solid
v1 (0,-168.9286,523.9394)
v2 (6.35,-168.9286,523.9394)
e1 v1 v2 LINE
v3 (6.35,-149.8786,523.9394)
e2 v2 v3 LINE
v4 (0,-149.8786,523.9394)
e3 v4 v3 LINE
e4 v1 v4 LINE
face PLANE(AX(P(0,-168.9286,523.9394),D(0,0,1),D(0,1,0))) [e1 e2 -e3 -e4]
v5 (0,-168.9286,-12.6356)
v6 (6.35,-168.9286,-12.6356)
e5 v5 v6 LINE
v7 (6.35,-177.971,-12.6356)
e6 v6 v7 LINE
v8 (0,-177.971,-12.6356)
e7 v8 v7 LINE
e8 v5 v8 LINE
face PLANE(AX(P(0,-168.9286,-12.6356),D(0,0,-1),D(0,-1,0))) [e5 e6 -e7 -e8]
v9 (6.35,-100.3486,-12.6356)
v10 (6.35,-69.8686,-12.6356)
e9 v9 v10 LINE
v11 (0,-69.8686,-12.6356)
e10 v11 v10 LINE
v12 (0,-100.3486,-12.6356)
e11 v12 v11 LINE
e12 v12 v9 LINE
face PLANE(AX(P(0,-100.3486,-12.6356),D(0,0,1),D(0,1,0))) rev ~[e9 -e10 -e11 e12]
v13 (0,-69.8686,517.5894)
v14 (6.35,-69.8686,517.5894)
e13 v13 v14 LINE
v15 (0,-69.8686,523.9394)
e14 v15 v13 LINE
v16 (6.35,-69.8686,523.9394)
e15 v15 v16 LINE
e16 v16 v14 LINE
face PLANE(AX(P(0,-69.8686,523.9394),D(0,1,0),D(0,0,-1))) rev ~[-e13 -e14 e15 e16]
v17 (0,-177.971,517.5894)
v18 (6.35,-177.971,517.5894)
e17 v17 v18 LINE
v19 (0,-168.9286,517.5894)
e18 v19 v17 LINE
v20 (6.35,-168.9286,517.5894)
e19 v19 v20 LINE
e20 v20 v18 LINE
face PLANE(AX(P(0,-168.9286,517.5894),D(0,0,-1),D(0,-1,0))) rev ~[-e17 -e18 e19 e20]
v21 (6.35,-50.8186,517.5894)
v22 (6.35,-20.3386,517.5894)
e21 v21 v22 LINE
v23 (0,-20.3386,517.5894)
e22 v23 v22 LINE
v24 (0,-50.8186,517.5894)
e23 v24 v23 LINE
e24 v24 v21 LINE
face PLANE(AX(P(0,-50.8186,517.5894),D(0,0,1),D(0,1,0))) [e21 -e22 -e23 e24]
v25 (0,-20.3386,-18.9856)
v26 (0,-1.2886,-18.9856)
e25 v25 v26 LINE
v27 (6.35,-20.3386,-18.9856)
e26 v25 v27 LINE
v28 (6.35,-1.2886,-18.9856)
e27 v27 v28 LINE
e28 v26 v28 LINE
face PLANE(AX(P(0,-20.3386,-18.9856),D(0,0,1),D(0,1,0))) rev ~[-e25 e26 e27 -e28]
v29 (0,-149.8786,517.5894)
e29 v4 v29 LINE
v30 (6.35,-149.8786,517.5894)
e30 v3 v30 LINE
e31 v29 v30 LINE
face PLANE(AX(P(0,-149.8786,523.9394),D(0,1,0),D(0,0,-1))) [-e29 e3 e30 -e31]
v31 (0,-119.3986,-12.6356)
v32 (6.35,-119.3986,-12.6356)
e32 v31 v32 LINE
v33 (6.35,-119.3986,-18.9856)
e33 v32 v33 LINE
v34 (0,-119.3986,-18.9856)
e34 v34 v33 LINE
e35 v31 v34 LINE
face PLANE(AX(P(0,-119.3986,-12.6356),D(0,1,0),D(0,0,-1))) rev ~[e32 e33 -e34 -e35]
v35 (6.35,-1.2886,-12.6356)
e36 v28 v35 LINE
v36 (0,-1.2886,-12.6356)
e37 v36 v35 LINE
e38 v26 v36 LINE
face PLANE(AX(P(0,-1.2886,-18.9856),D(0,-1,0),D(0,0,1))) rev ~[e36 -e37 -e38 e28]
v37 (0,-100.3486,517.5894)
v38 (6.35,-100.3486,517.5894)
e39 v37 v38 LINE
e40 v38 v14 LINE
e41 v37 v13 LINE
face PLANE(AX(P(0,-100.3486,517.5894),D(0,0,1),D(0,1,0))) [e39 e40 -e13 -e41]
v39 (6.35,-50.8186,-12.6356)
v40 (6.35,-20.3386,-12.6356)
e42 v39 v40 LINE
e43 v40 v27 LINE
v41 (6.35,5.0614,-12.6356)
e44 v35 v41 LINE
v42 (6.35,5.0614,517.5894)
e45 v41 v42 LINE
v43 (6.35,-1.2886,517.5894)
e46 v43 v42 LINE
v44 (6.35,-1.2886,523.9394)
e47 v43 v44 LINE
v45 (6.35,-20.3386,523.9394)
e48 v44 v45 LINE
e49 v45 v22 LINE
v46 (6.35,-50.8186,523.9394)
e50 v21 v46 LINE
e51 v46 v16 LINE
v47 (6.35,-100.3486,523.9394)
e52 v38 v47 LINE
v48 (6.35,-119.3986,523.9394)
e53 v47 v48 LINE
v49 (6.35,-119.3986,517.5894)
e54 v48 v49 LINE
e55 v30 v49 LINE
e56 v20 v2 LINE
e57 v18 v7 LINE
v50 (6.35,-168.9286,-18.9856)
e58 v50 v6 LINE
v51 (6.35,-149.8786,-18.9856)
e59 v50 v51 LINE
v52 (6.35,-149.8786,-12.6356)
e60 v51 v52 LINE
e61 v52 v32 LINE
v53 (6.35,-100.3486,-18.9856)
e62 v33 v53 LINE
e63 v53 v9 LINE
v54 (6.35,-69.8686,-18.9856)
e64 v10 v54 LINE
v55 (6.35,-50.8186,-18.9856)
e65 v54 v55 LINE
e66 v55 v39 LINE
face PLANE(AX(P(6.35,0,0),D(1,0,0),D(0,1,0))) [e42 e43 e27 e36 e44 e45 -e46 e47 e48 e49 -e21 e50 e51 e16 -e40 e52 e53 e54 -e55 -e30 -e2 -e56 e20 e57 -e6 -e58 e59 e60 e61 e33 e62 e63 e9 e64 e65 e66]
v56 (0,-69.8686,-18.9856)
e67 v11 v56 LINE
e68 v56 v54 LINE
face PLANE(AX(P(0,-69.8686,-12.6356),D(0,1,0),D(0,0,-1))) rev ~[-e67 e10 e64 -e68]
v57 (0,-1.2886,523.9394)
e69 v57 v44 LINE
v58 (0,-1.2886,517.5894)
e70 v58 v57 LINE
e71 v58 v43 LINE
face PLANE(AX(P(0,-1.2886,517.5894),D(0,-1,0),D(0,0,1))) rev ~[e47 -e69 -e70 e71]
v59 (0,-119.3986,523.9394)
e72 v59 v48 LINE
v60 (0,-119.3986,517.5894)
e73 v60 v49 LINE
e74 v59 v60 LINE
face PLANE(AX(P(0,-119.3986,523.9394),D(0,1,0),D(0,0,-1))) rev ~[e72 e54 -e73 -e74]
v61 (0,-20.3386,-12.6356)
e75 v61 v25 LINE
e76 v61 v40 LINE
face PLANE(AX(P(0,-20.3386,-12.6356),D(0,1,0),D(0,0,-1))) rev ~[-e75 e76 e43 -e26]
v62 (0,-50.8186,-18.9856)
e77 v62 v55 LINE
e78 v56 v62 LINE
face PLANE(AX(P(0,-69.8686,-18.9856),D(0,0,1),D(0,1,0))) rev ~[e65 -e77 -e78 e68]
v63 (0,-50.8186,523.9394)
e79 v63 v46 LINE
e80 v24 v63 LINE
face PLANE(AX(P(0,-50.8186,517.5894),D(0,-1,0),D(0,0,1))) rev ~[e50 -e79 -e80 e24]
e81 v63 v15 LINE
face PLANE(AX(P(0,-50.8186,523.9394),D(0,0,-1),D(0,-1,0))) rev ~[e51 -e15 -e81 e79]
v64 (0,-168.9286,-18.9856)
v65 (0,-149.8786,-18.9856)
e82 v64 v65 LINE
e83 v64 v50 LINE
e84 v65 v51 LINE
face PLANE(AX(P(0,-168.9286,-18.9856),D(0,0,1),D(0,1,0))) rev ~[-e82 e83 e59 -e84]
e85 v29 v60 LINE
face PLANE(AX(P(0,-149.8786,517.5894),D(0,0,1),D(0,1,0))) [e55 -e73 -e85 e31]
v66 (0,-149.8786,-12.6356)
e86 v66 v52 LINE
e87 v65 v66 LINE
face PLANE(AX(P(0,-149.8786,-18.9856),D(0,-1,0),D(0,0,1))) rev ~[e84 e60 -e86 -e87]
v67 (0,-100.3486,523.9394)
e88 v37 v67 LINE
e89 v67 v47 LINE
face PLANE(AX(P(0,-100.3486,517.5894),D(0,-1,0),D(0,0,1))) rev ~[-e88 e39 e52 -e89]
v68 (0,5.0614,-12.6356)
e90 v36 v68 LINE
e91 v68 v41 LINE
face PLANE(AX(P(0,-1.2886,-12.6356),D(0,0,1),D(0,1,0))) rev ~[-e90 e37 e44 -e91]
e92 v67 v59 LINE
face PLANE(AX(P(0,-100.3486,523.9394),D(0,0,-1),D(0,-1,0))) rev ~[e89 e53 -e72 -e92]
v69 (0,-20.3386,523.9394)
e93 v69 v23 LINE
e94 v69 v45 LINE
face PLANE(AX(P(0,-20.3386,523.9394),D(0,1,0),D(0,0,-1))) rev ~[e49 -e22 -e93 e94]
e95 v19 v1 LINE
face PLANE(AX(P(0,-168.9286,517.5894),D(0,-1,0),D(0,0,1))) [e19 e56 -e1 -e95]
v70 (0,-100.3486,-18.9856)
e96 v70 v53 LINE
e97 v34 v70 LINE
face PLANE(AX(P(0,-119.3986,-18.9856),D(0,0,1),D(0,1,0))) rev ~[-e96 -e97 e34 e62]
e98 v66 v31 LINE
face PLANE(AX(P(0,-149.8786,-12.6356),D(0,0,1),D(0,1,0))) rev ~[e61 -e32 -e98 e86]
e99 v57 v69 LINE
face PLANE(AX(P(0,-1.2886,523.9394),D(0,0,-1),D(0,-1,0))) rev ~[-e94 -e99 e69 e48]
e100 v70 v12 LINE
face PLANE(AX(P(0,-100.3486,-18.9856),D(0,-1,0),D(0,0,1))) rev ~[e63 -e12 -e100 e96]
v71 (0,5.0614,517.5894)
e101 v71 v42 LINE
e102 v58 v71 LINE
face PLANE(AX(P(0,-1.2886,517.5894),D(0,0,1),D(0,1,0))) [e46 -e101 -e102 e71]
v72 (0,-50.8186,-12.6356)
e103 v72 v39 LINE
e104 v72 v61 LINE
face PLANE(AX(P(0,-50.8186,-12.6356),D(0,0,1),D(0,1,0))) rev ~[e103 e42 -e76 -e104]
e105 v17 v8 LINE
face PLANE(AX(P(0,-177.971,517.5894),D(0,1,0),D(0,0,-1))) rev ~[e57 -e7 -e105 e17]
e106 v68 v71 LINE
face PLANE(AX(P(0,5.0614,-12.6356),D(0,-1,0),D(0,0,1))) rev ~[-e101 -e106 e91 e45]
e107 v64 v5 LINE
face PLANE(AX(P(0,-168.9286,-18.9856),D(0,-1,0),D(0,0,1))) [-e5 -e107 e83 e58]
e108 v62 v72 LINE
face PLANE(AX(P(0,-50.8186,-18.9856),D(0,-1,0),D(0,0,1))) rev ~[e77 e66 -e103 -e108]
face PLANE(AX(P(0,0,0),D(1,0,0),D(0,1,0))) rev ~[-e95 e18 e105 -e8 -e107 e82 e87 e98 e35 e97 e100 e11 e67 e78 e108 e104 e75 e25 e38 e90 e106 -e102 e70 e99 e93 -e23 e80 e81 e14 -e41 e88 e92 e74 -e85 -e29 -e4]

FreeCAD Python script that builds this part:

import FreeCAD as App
import Part
import Sketcher
Q = App.Units.Quantity


def add_polygon(sketch, points):
    """Adds a closed chain of lines whose ends are joined by coincident constraints."""
    first, n = sketch.GeometryCount, len(points)
    for a, b in zip(points, points[1:] + points[:1]):
        sketch.addGeometry(Part.LineSegment(App.Vector(*a, 0), App.Vector(*b, 0)), False)
    for i in range(n):
        sketch.addConstraint(Sketcher.Constraint("Coincident", first + i, 2, first + (i + 1) % n, 1))

doc = App.newDocument("Part")
body = doc.addObject("PartDesign::Body", "Body")

sketch1 = body.newObject("Sketcher::SketchObject", "Sketch")
sketch1.AttachmentSupport = (doc.getObject("YZ_Plane"), [""])
sketch1.MapMode = "FlatFace"
add_polygon(sketch1, [(-168.9286, 517.5894), (-177.971, 517.5894), (-177.971, -12.6356), (-168.9286, -12.6356), (-168.9286, -18.9856), (-149.8786, -18.9856), (-149.8786, -12.6356), (-119.3986, -12.6356), (-119.3986, -18.9856), (-100.3486, -18.9856), (-100.3486, -12.6356), (-69.8686, -12.6356), (-69.8686, -18.9856), (-50.8186, -18.9856), (-50.8186, -12.6356), (-20.3386, -12.6356), (-20.3386, -18.9856), (-1.2886, -18.9856), (-1.2886, -12.6356), (5.0614, -12.6356), (5.0614, 517.5894), (-1.2886, 517.5894), (-1.2886, 523.9394), (-20.3386, 523.9394), (-20.3386, 517.5894), (-50.8186, 517.5894), (-50.8186, 523.9394), (-69.8686, 523.9394), (-69.8686, 517.5894), (-100.3486, 517.5894), (-100.3486, 523.9394), (-119.3986, 523.9394), (-119.3986, 517.5894), (-149.8786, 517.5894), (-149.8786, 523.9394), (-168.9286, 523.9394)])
sketch1.addConstraint([
    Sketcher.Constraint("Horizontal", 0),
    Sketcher.Constraint("Vertical", 1),
    Sketcher.Constraint("Horizontal", 2),
    Sketcher.Constraint("Vertical", 3),
    Sketcher.Constraint("Horizontal", 4),
    Sketcher.Constraint("Vertical", 5),
    Sketcher.Constraint("Horizontal", 6),
    Sketcher.Constraint("Vertical", 7),
    Sketcher.Constraint("Horizontal", 8),
    Sketcher.Constraint("Vertical", 9),
    Sketcher.Constraint("Horizontal", 10),
    Sketcher.Constraint("Vertical", 11),
    Sketcher.Constraint("Horizontal", 12),
    Sketcher.Constraint("Vertical", 13),
    Sketcher.Constraint("Horizontal", 14),
    Sketcher.Constraint("Vertical", 15),
    Sketcher.Constraint("Horizontal", 16),
    Sketcher.Constraint("Vertical", 17),
    Sketcher.Constraint("Horizontal", 18),
    Sketcher.Constraint("Vertical", 19),
    Sketcher.Constraint("Horizontal", 20),
    Sketcher.Constraint("Vertical", 21),
    Sketcher.Constraint("Horizontal", 22),
    Sketcher.Constraint("Vertical", 23),
    Sketcher.Constraint("Horizontal", 24),
    Sketcher.Constraint("Vertical", 25),
    Sketcher.Constraint("Horizontal", 26),
    Sketcher.Constraint("Vertical", 27),
    Sketcher.Constraint("Horizontal", 28),
    Sketcher.Constraint("Vertical", 29),
    Sketcher.Constraint("Horizontal", 30),
    Sketcher.Constraint("Vertical", 31),
    Sketcher.Constraint("Horizontal", 32),
    Sketcher.Constraint("Vertical", 33),
    Sketcher.Constraint("Horizontal", 34),
    Sketcher.Constraint("Vertical", 35),
    Sketcher.Constraint("Horizontal", 2, 2, 5, 2),
    Sketcher.Constraint("Horizontal", 4, 2, 7, 2),
    Sketcher.Constraint("Horizontal", 6, 2, 9, 2),
    Sketcher.Constraint("Horizontal", 8, 2, 11, 2),
    Sketcher.Constraint("Horizontal", 10, 2, 13, 2),
    Sketcher.Constraint("Horizontal", 12, 2, 15, 2),
    Sketcher.Constraint("Horizontal", 14, 2, 17, 2),
    Sketcher.Constraint("Horizontal", 0, 2, 19, 2),
    Sketcher.Constraint("Horizontal", 20, 2, 23, 2),
    Sketcher.Constraint("Horizontal", 22, 2, 25, 2),
    Sketcher.Constraint("Horizontal", 24, 2, 27, 2),
    Sketcher.Constraint("Horizontal", 26, 2, 29, 2),
    Sketcher.Constraint("Horizontal", 28, 2, 31, 2),
    Sketcher.Constraint("Horizontal", 30, 2, 33, 2),
    Sketcher.Constraint("Vertical", 17, 2, 20, 2),
    Sketcher.Constraint("Vertical", 15, 2, 22, 2),
    Sketcher.Constraint("Vertical", 13, 2, 24, 2),
    Sketcher.Constraint("Vertical", 11, 2, 26, 2),
    Sketcher.Constraint("Vertical", 9, 2, 28, 2),
    Sketcher.Constraint("Vertical", 7, 2, 30, 2),
    Sketcher.Constraint("Vertical", 5, 2, 32, 2),
    Sketcher.Constraint("Vertical", 3, 2, 34, 2),
    Sketcher.Constraint("Equal", 4, 8),
    Sketcher.Constraint("Equal", 6, 10),
    Sketcher.Constraint("Equal", 8, 12),
    Sketcher.Constraint("Equal", 10, 14),
    Sketcher.Constraint("Equal", 12, 16),
    Sketcher.Constraint("Equal", 20, 3),
    Sketcher.Constraint("Equal", 17, 21),
    Sketcher.Constraint("DistanceX", 6, 1, 6, 2, Q("1.2 in")),
    Sketcher.Constraint("DistanceX", 4, 1, 4, 2, Q("0.75 in")),
    Sketcher.Constraint("DistanceX", 18, 1, 18, 2, Q("0.25 in")),
    Sketcher.Constraint("DistanceX", 0, 2, 0, 1, Q("0.356 in")),
    Sketcher.Constraint("DistanceY", 1, 2, 1, 1, Q("20.875 in")),
    Sketcher.Constraint("DistanceX", 0, 2, -1, 1, Q("177.971 mm")),
    Sketcher.Constraint("DistanceY", -1, 1, 0, 2, Q("517.5894 mm")),
])
pad1 = body.newObject("PartDesign::Pad", "Pad")
pad1.Profile = sketch1
pad1.Length = Q("0.25 in")

doc.recompute()
